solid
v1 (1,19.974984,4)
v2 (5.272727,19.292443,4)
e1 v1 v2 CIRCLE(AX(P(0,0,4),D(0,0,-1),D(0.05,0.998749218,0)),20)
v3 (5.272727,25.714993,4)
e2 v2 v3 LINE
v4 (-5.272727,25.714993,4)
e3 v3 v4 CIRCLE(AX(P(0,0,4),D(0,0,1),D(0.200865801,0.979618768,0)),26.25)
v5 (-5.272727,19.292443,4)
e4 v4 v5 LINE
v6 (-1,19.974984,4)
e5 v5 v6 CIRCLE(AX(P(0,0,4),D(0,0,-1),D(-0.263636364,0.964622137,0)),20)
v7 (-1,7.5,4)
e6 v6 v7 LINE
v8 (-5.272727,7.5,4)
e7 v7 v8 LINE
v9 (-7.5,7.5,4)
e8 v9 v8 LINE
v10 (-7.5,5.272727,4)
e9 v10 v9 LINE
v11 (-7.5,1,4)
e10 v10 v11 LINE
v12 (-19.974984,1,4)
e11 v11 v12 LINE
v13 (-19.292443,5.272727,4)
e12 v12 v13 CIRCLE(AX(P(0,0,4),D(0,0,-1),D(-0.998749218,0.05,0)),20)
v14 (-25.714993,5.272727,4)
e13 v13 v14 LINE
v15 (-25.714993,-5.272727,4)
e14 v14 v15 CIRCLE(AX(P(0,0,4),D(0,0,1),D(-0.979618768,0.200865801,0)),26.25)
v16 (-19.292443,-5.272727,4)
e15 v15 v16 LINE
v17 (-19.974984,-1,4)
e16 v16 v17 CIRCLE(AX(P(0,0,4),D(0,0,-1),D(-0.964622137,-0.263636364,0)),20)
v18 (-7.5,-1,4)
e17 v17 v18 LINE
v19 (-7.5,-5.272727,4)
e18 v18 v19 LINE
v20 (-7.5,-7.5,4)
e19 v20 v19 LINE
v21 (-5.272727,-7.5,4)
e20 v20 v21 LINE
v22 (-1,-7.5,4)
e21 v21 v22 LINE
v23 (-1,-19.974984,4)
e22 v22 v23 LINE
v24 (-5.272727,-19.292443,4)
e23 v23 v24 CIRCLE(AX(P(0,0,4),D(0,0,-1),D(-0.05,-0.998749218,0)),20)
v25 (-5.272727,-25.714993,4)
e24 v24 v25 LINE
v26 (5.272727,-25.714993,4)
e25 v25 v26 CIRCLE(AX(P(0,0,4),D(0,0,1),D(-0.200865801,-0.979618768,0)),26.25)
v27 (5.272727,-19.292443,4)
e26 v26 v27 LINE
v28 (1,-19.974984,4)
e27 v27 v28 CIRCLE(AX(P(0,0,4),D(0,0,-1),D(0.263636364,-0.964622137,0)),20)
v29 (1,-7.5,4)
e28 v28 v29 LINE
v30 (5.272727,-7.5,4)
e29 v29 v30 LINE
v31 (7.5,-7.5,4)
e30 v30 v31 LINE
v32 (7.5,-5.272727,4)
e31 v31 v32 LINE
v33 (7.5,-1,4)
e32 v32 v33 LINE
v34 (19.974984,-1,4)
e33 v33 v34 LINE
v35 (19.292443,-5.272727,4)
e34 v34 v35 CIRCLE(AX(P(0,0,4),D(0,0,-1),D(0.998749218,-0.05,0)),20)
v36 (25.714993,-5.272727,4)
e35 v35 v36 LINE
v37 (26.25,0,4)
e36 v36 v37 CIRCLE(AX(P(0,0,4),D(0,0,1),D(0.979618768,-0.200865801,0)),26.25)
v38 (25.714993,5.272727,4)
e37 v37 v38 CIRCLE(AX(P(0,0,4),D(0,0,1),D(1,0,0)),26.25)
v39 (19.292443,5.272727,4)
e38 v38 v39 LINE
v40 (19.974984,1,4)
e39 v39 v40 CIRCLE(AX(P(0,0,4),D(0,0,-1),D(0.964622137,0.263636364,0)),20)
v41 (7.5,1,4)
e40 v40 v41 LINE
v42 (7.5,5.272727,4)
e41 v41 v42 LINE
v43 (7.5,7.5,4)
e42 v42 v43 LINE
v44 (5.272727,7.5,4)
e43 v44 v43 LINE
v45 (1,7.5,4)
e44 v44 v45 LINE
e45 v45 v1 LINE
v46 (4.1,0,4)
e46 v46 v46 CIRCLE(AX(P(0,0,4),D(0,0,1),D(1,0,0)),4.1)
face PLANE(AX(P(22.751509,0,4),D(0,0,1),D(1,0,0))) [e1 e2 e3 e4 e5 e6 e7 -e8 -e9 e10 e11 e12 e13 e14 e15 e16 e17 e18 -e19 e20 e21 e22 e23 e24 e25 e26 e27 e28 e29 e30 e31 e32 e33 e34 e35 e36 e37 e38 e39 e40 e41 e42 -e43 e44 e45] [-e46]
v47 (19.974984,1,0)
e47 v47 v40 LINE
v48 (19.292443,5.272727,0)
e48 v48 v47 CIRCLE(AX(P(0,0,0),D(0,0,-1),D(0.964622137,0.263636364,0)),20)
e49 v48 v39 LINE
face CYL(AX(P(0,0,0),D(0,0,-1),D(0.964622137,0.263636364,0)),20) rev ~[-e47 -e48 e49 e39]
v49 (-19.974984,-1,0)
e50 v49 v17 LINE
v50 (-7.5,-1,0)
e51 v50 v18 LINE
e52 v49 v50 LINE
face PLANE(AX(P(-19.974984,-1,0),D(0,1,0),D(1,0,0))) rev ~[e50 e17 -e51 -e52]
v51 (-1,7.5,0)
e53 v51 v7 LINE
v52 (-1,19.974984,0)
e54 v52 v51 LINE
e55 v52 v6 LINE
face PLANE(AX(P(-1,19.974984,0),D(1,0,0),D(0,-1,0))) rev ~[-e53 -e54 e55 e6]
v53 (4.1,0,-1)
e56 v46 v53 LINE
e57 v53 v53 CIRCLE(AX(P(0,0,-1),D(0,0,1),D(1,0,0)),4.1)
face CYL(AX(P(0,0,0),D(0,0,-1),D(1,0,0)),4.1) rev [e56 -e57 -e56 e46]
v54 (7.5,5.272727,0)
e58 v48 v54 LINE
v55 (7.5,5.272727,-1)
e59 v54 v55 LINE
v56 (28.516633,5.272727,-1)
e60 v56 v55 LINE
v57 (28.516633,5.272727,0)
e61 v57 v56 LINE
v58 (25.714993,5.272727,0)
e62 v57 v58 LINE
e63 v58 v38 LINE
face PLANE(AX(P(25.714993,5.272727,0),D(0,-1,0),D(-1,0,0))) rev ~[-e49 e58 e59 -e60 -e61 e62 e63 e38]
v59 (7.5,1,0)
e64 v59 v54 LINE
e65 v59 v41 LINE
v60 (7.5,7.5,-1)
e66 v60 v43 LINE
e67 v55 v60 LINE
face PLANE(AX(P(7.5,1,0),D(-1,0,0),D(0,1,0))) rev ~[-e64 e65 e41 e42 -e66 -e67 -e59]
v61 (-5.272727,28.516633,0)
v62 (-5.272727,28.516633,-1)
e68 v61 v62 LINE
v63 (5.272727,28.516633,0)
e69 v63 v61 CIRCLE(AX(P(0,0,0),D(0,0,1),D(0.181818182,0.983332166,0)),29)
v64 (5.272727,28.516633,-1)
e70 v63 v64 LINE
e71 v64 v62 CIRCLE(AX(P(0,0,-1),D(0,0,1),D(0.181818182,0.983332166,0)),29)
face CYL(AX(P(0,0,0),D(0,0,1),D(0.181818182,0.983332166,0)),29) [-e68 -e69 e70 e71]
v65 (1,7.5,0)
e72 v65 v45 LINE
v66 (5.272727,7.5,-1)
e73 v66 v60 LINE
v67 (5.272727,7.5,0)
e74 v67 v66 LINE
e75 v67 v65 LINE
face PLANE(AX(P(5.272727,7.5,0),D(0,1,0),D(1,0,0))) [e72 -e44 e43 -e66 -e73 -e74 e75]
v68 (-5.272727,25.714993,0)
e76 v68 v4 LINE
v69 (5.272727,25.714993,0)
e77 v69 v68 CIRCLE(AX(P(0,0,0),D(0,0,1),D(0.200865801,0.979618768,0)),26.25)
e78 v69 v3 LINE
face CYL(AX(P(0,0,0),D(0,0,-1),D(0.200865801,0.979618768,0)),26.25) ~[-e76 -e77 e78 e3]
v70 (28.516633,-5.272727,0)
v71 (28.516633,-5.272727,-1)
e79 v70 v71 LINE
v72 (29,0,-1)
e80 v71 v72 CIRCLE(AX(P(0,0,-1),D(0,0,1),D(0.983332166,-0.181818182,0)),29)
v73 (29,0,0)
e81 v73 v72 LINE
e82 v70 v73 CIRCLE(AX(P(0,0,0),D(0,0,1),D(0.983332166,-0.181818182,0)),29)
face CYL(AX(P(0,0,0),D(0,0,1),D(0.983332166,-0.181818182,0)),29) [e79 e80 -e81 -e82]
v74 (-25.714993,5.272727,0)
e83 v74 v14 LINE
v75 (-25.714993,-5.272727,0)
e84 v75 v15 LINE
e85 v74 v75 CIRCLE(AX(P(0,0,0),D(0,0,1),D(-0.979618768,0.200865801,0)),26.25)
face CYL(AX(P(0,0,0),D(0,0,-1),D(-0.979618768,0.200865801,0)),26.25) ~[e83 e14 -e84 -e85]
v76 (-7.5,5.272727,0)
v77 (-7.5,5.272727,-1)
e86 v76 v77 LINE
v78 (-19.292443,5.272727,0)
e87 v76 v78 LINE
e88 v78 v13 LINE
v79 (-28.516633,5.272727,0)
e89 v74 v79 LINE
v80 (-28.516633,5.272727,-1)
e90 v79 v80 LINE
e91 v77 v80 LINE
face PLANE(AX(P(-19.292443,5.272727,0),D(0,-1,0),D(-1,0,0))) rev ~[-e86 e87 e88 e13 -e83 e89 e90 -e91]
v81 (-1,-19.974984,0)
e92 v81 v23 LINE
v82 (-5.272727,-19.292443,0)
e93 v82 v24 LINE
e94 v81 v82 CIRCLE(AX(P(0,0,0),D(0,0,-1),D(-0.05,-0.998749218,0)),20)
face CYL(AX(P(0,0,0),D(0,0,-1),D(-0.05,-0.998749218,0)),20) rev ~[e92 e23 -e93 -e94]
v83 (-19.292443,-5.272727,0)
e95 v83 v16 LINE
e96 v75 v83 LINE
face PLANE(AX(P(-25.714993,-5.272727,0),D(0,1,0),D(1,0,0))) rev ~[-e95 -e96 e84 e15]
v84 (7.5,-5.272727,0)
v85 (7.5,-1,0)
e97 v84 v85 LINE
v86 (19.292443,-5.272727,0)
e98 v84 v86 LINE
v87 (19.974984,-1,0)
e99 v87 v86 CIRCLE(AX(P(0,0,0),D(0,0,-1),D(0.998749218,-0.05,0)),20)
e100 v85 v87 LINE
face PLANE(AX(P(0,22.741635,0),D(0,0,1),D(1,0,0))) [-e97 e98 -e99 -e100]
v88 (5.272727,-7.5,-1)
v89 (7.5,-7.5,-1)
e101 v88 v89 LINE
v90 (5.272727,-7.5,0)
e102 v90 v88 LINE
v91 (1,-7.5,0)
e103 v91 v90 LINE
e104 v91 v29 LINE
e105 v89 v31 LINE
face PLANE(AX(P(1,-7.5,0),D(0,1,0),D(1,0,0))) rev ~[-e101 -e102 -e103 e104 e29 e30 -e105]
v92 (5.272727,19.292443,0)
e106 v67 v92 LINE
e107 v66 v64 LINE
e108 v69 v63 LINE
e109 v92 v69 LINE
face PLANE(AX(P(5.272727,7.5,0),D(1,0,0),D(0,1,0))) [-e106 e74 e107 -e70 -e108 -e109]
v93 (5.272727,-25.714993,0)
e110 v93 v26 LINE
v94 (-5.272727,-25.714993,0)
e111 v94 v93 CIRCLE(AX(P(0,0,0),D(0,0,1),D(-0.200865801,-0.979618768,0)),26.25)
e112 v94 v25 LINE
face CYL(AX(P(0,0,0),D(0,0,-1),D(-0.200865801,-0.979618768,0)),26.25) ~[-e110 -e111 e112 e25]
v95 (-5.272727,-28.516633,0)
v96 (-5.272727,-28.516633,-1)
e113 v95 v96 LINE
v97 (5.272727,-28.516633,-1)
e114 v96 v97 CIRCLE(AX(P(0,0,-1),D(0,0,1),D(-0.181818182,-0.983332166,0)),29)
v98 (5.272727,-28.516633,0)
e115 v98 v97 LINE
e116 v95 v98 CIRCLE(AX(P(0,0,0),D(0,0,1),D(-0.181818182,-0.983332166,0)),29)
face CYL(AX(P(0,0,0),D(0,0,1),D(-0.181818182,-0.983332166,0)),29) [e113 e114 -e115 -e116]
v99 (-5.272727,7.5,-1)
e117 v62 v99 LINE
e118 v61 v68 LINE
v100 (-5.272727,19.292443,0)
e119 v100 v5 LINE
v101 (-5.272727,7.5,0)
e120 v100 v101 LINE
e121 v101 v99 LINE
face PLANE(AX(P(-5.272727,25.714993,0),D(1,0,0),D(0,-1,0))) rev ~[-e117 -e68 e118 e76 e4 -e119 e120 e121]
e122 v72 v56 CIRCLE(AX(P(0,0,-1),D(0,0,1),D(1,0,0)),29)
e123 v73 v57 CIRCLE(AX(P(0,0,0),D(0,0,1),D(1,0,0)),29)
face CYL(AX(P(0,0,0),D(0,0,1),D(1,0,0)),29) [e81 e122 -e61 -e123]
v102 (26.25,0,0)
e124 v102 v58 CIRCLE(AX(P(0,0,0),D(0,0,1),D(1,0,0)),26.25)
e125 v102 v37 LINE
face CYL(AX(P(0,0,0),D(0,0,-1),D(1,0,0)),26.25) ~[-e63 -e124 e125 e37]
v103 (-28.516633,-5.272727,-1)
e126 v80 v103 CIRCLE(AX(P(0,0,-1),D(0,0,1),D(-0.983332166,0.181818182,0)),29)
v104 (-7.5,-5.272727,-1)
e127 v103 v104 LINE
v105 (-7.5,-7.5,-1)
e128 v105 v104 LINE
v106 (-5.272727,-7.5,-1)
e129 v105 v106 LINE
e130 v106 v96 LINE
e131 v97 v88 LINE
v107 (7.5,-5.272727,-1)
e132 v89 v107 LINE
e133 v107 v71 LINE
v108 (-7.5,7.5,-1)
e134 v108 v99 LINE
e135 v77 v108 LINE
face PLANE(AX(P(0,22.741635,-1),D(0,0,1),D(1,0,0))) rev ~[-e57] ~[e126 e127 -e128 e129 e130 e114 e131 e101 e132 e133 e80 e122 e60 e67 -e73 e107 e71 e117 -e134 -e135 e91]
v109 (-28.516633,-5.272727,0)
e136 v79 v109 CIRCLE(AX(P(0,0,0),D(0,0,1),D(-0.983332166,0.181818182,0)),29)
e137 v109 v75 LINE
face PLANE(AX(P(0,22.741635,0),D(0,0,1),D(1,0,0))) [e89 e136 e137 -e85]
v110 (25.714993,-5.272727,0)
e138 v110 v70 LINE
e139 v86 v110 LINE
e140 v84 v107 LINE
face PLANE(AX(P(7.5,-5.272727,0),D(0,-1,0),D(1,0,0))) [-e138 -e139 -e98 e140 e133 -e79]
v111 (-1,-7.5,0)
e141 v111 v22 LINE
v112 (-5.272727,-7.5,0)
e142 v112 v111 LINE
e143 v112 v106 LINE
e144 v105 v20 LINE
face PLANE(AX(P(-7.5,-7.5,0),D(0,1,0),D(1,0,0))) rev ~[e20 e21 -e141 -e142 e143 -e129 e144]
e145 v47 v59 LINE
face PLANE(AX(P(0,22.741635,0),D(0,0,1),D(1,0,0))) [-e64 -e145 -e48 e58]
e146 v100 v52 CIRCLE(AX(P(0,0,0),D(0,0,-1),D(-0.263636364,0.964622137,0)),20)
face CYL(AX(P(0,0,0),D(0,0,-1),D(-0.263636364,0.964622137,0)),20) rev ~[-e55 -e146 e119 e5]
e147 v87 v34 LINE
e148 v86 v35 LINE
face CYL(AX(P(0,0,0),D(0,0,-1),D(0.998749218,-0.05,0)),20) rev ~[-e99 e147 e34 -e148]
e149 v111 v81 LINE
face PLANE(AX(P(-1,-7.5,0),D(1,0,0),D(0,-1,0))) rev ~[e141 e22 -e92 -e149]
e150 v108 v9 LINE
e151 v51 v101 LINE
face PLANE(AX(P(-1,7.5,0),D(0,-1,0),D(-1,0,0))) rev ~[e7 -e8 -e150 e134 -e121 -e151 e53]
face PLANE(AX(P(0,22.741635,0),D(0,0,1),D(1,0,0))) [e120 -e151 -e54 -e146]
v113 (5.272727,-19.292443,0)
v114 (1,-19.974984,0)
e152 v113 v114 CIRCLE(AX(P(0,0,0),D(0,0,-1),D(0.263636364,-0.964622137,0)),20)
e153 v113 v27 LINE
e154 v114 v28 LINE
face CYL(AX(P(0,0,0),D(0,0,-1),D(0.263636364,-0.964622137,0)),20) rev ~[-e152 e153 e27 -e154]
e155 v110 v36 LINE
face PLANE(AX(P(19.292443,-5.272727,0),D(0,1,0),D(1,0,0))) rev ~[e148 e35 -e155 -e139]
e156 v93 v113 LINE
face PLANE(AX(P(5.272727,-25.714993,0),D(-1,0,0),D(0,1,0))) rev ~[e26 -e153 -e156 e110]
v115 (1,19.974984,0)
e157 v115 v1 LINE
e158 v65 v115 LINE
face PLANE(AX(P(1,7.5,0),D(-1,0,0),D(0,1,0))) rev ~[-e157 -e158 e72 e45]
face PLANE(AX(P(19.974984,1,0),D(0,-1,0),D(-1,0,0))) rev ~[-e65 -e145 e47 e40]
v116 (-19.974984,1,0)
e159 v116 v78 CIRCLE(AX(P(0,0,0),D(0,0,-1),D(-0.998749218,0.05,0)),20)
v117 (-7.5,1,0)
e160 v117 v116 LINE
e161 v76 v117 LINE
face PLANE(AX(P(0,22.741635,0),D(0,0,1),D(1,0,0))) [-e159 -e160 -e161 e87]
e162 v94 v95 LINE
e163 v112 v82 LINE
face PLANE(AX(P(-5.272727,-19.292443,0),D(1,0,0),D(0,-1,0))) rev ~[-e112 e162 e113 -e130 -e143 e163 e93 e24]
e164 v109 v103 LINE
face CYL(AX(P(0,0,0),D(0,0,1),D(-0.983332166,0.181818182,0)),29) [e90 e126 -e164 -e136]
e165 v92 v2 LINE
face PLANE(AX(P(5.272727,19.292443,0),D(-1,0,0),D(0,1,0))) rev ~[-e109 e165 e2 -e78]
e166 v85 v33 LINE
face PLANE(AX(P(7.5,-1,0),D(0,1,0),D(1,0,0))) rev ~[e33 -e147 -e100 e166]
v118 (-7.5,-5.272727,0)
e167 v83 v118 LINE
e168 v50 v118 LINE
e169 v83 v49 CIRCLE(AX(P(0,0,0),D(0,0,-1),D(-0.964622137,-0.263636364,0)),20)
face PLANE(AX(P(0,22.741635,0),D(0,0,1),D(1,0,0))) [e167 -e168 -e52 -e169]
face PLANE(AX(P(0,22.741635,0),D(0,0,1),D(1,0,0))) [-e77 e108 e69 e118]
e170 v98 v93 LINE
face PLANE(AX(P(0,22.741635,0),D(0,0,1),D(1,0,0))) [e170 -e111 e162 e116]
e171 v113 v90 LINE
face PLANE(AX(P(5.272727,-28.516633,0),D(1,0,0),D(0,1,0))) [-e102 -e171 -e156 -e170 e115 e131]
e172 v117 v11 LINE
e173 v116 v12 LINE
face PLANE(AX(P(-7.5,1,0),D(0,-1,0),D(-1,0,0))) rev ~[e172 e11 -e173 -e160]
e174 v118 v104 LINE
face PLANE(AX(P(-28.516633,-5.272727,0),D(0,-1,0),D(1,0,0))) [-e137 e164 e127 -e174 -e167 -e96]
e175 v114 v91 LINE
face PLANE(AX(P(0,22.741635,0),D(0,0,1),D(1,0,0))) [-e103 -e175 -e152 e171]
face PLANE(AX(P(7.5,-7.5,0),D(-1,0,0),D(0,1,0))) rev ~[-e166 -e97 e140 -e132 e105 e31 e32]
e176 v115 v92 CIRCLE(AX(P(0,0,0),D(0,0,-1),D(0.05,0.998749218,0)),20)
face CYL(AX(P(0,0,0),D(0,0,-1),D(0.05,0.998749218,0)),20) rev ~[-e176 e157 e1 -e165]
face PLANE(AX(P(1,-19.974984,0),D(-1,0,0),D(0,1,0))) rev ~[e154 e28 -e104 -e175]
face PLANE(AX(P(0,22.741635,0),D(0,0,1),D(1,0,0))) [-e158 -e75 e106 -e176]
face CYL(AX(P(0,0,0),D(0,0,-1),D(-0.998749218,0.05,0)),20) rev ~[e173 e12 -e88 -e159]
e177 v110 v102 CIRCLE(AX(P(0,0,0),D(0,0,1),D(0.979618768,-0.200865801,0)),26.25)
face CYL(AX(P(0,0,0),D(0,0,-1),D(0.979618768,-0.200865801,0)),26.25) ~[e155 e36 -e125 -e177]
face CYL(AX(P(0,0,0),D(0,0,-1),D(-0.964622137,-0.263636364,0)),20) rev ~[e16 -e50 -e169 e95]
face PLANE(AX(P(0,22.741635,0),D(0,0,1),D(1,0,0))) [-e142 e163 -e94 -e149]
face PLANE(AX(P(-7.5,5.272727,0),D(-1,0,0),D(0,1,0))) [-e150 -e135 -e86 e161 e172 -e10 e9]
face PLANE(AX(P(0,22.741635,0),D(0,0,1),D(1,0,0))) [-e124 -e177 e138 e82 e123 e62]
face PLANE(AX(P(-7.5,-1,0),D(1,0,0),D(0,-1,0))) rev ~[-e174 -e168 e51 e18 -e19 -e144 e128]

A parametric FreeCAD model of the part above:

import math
import FreeCAD as App
import Part
import Sketcher
from FreeCAD import Vector
Q = App.Units.Quantity

doc = App.newDocument("Part")
body = doc.addObject("PartDesign::Body", "Body")

# Sketch on XY plane
sketch1 = body.newObject("Sketcher::SketchObject", "Sketch")
sketch1.AttachmentSupport = (doc.getObject("XY_Plane"), [""])
sketch1.MapMode = "FlatFace"
sketch1.addGeometry([
    Part.ArcOfCircle(Part.Circle(Vector(0, 0, 0), Vector(0, 0, 1), 29), math.radians(80), math.radians(100)),  # 0
    Part.LineSegment(Vector(-5.3, 28.5, 0), Vector(-5.3, 7.5, 0)),  # 1
    Part.LineSegment(Vector(-5.3, 7.5, 0), Vector(-7.5, 7.5, 0)),  # 2
    Part.LineSegment(Vector(-7.5, 7.5, 0), Vector(-7.5, 5.3, 0)),  # 3
    Part.LineSegment(Vector(-7.5, 5.3, 0), Vector(-28.5, 5.3, 0)),  # 4
    Part.ArcOfCircle(Part.Circle(Vector(0, 0, 0), Vector(0, 0, 1), 29), math.radians(170), math.radians(190)),  # 5
    Part.LineSegment(Vector(-28.5, -5.3, 0), Vector(-7.5, -5.3, 0)),  # 6
    Part.LineSegment(Vector(-7.5, -5.3, 0), Vector(-7.5, -7.5, 0)),  # 7
    Part.LineSegment(Vector(-7.5, -7.5, 0), Vector(-5.3, -7.5, 0)),  # 8
    Part.LineSegment(Vector(-5.3, -7.5, 0), Vector(-5.3, -28.5, 0)),  # 9
    Part.ArcOfCircle(Part.Circle(Vector(0, 0, 0), Vector(0, 0, 1), 29), math.radians(-100), math.radians(-80)),  # 10
    Part.LineSegment(Vector(5.3, -28.5, 0), Vector(5.3, -7.5, 0)),  # 11
    Part.LineSegment(Vector(5.3, -7.5, 0), Vector(7.5, -7.5, 0)),  # 12
    Part.LineSegment(Vector(7.5, -7.5, 0), Vector(7.5, -5.3, 0)),  # 13
    Part.LineSegment(Vector(7.5, -5.3, 0), Vector(28.5, -5.3, 0)),  # 14
    Part.ArcOfCircle(Part.Circle(Vector(0, 0, 0), Vector(0, 0, 1), 29), math.radians(-10.48), math.radians(0)),  # 15
    Part.ArcOfCircle(Part.Circle(Vector(0, 0, 0), Vector(0, 0, 1), 29), math.radians(0), math.radians(10.48)),  # 16
    Part.LineSegment(Vector(28.5, 5.3, 0), Vector(7.5, 5.3, 0)),  # 17
    Part.LineSegment(Vector(7.5, 5.3, 0), Vector(7.5, 7.5, 0)),  # 18
    Part.LineSegment(Vector(7.5, 7.5, 0), Vector(5.3, 7.5, 0)),  # 19
    Part.LineSegment(Vector(5.3, 7.5, 0), Vector(5.3, 28.5, 0)),  # 20
    Part.Circle(Vector(0, 0, 0), Vector(0, 0, 1), 4.1),  # 21
], False)
sketch1.addConstraint([
    Sketcher.Constraint("Coincident", 0, 2, 1, 1),
    Sketcher.Constraint("Coincident", 1, 2, 2, 1),
    Sketcher.Constraint("Coincident", 2, 2, 3, 1),
    Sketcher.Constraint("Coincident", 3, 2, 4, 1),
    Sketcher.Constraint("Coincident", 4, 2, 5, 1),
    Sketcher.Constraint("Coincident", 5, 2, 6, 1),
    Sketcher.Constraint("Coincident", 6, 2, 7, 1),
    Sketcher.Constraint("Coincident", 7, 2, 8, 1),
    Sketcher.Constraint("Coincident", 8, 2, 9, 1),
    Sketcher.Constraint("Coincident", 9, 2, 10, 1),
    Sketcher.Constraint("Coincident", 10, 2, 11, 1),
    Sketcher.Constraint("Coincident", 11, 2, 12, 1),
    Sketcher.Constraint("Coincident", 12, 2, 13, 1),
    Sketcher.Constraint("Coincident", 13, 2, 14, 1),
    Sketcher.Constraint("Coincident", 14, 2, 15, 1),
    Sketcher.Constraint("Tangent", 15, 2, 16, 1),
    Sketcher.Constraint("Coincident", 16, 2, 17, 1),
    Sketcher.Constraint("Coincident", 17, 2, 18, 1),
    Sketcher.Constraint("Coincident", 18, 2, 19, 1),
    Sketcher.Constraint("Coincident", 19, 2, 20, 1),
    Sketcher.Constraint("Coincident", 20, 2, 0, 1),
    Sketcher.Constraint("Vertical", 1),
    Sketcher.Constraint("Horizontal", 2),
    Sketcher.Constraint("Vertical", 3),
    Sketcher.Constraint("Horizontal", 4),
    Sketcher.Constraint("Horizontal", 6),
    Sketcher.Constraint("Vertical", 7),
    Sketcher.Constraint("Horizontal", 8),
    Sketcher.Constraint("Vertical", 9),
    Sketcher.Constraint("Vertical", 11),
    Sketcher.Constraint("Horizontal", 12),
    Sketcher.Constraint("Vertical", 13),
    Sketcher.Constraint("Horizontal", 14),
    Sketcher.Constraint("Horizontal", 17),
    Sketcher.Constraint("Vertical", 18),
    Sketcher.Constraint("Horizontal", 19),
    Sketcher.Constraint("Vertical", 20),
    Sketcher.Constraint("Coincident", 0, 3, -1, 1),
    Sketcher.Constraint("Coincident", 5, 3, -1, 1),
    Sketcher.Constraint("Coincident", 10, 3, -1, 1),
    Sketcher.Constraint("Coincident", 15, 3, -1, 1),
    Sketcher.Constraint("Coincident", 21, 3, -1, 1),
    Sketcher.Constraint("Equal", 0, 5),
    Sketcher.Constraint("Equal", 5, 10),
    Sketcher.Constraint("Equal", 10, 15),
    Sketcher.Constraint("Equal", 15, 16),
    Sketcher.Constraint("Symmetric", 1, 2, 11, 2, -1, 1),
    Sketcher.Constraint("Symmetric", 3, 2, 13, 2, -1, 1),
    Sketcher.Constraint("Symmetric", 6, 2, 17, 2, -1, 1),
    Sketcher.Constraint("Symmetric", 8, 2, 19, 2, -1, 1),
    Sketcher.Constraint("Symmetric", 8, 2, 11, 2, -2),
    Sketcher.Constraint("Symmetric", 6, 2, 13, 2, -2),
    Sketcher.Constraint("PointOnObject", 15, 2, -1),
    Sketcher.Constraint("Equal", 17, 1),
    Sketcher.Constraint("Equal", 19, 3),
    Sketcher.Constraint("Radius", 0, Q("29 mm")),
    Sketcher.Constraint("Diameter", 21, Q("8.2 mm")),
    Sketcher.Constraint("DistanceY", -1, 1, 1, 2, Q("7.5 mm")),
    Sketcher.Constraint("DistanceX", 2, 2, 2, 1, Q("2.227273 mm")),
])
pad1 = body.newObject("PartDesign::Pad", "Pad")
pad1.Profile = sketch1
pad1.Length = 1
pad1.Reversed = True

# Sketch on XY plane
sketch2 = body.newObject("Sketcher::SketchObject", "Sketch001")
sketch2.AttachmentSupport = (doc.getObject("XY_Plane"), [""])
sketch2.MapMode = "FlatFace"
sketch2.addGeometry([
    Part.ArcOfCircle(Part.Circle(Vector(0, 0, 0), Vector(0, 0, 1), 26.2), math.radians(-11.59), math.radians(0)),  # 0
    Part.ArcOfCircle(Part.Circle(Vector(0, 0, 0), Vector(0, 0, 1), 26.2), math.radians(0), math.radians(11.59)),  # 1
    Part.LineSegment(Vector(25.7, 5.3, 0), Vector(19.3, 5.3, 0)),  # 2
    Part.ArcOfCircle(Part.Circle(Vector(0, 0, 0), Vector(0, 0, 1), 20), math.radians(2.87), math.radians(15.29)),  # 3
    Part.LineSegment(Vector(20, 1, 0), Vector(7.5, 1, 0)),  # 4
    Part.LineSegment(Vector(7.5, 1, 0), Vector(7.5, 5.3, 0)),  # 5
    Part.LineSegment(Vector(7.5, 5.3, 0), Vector(7.5, 7.5, 0)),  # 6
    Part.LineSegment(Vector(7.5, 7.5, 0), Vector(5.3, 7.5, 0)),  # 7
    Part.LineSegment(Vector(5.3, 7.5, 0), Vector(1, 7.5, 0)),  # 8
    Part.LineSegment(Vector(1, 7.5, 0), Vector(1, 20, 0)),  # 9
    Part.ArcOfCircle(Part.Circle(Vector(0, 0, 0), Vector(0, 0, 1), 20), math.radians(74.71), math.radians(87.13)),  # 10
    Part.LineSegment(Vector(5.3, 19.3, 0), Vector(5.3, 25.7, 0)),  # 11
    Part.ArcOfCircle(Part.Circle(Vector(0, 0, 0), Vector(0, 0, 1), 26.2), math.radians(78), math.radians(102)),  # 12
    Part.LineSegment(Vector(-5.3, 25.7, 0), Vector(-5.3, 19.3, 0)),  # 13
    Part.ArcOfCircle(Part.Circle(Vector(0, 0, 0), Vector(0, 0, 1), 20), math.radians(92.87), math.radians(105.29)),  # 14
    Part.LineSegment(Vector(-1, 20, 0), Vector(-1, 7.5, 0)),  # 15
    Part.LineSegment(Vector(-1, 7.5, 0), Vector(-5.3, 7.5, 0)),  # 16
    Part.LineSegment(Vector(-5.3, 7.5, 0), Vector(-7.5, 7.5, 0)),  # 17
    Part.LineSegment(Vector(-7.5, 7.5, 0), Vector(-7.5, 5.3, 0)),  # 18
    Part.LineSegment(Vector(-7.5, 5.3, 0), Vector(-7.5, 1, 0)),  # 19
    Part.LineSegment(Vector(-7.5, 1, 0), Vector(-20, 1, 0)),  # 20
    Part.ArcOfCircle(Part.Circle(Vector(0, 0, 0), Vector(0, 0, 1), 20), math.radians(164.71), math.radians(177.13)),  # 21
    Part.LineSegment(Vector(-19.3, 5.3, 0), Vector(-25.7, 5.3, 0)),  # 22
    Part.ArcOfCircle(Part.Circle(Vector(0, 0, 0), Vector(0, 0, 1), 26.2), math.radians(168), math.radians(192)),  # 23
    Part.LineSegment(Vector(-25.7, -5.3, 0), Vector(-19.3, -5.3, 0)),  # 24
    Part.ArcOfCircle(Part.Circle(Vector(0, 0, 0), Vector(0, 0, 1), 20), math.radians(-177.13), math.radians(-164.71)),  # 25
    Part.LineSegment(Vector(-20, -1, 0), Vector(-7.5, -1, 0)),  # 26
    Part.LineSegment(Vector(-7.5, -1, 0), Vector(-7.5, -5.3, 0)),  # 27
    Part.LineSegment(Vector(-7.5, -5.3, 0), Vector(-7.5, -7.5, 0)),  # 28
    Part.LineSegment(Vector(-7.5, -7.5, 0), Vector(-5.3, -7.5, 0)),  # 29
    Part.LineSegment(Vector(-5.3, -7.5, 0), Vector(-1, -7.5, 0)),  # 30
    Part.LineSegment(Vector(-1, -7.5, 0), Vector(-1, -20, 0)),  # 31
    Part.ArcOfCircle(Part.Circle(Vector(0, 0, 0), Vector(0, 0, 1), 20), math.radians(-105.29), math.radians(-92.87)),  # 32
    Part.LineSegment(Vector(-5.3, -19.3, 0), Vector(-5.3, -25.7, 0)),  # 33
    Part.ArcOfCircle(Part.Circle(Vector(0, 0, 0), Vector(0, 0, 1), 26.2), math.radians(-102), math.radians(-78)),  # 34
    Part.LineSegment(Vector(5.3, -25.7, 0), Vector(5.3, -19.3, 0)),  # 35
    Part.ArcOfCircle(Part.Circle(Vector(0, 0, 0), Vector(0, 0, 1), 20), math.radians(-87.13), math.radians(-74.71)),  # 36
    Part.LineSegment(Vector(1, -20, 0), Vector(1, -7.5, 0)),  # 37
    Part.LineSegment(Vector(1, -7.5, 0), Vector(5.3, -7.5, 0)),  # 38
    Part.LineSegment(Vector(5.3, -7.5, 0), Vector(7.5, -7.5, 0)),  # 39
    Part.LineSegment(Vector(7.5, -7.5, 0), Vector(7.5, -5.3, 0)),  # 40
    Part.LineSegment(Vector(7.5, -5.3, 0), Vector(7.5, -1, 0)),  # 41
    Part.LineSegment(Vector(7.5, -1, 0), Vector(20, -1, 0)),  # 42
    Part.ArcOfCircle(Part.Circle(Vector(0, 0, 0), Vector(0, 0, 1), 20), math.radians(-15.29), math.radians(-2.87)),  # 43
    Part.LineSegment(Vector(19.3, -5.3, 0), Vector(25.7, -5.3, 0)),  # 44
    Part.Circle(Vector(0, 0, 0), Vector(0, 0, 1), 4.1),  # 45
], False)
sketch2.addConstraint([
    Sketcher.Constraint("Tangent", 0, 2, 1, 1),
    Sketcher.Constraint("Coincident", 1, 2, 2, 1),
    Sketcher.Constraint("Coincident", 2, 2, 3, 2),
    Sketcher.Constraint("Coincident", 3, 1, 4, 1),
    Sketcher.Constraint("Coincident", 4, 2, 5, 1),
    Sketcher.Constraint("Coincident", 5, 2, 6, 1),
    Sketcher.Constraint("Coincident", 6, 2, 7, 1),
    Sketcher.Constraint("Coincident", 7, 2, 8, 1),
    Sketcher.Constraint("Coincident", 8, 2, 9, 1),
    Sketcher.Constraint("Coincident", 9, 2, 10, 2),
    Sketcher.Constraint("Coincident", 10, 1, 11, 1),
    Sketcher.Constraint("Coincident", 11, 2, 12, 1),
    Sketcher.Constraint("Coincident", 12, 2, 13, 1),
    Sketcher.Constraint("Coincident", 13, 2, 14, 2),
    Sketcher.Constraint("Coincident", 14, 1, 15, 1),
    Sketcher.Constraint("Coincident", 15, 2, 16, 1),
    Sketcher.Constraint("Coincident", 16, 2, 17, 1),
    Sketcher.Constraint("Coincident", 17, 2, 18, 1),
    Sketcher.Constraint("Coincident", 18, 2, 19, 1),
    Sketcher.Constraint("Coincident", 19, 2, 20, 1),
    Sketcher.Constraint("Coincident", 20, 2, 21, 2),
    Sketcher.Constraint("Coincident", 21, 1, 22, 1),
    Sketcher.Constraint("Coincident", 22, 2, 23, 1),
    Sketcher.Constraint("Coincident", 23, 2, 24, 1),
    Sketcher.Constraint("Coincident", 24, 2, 25, 2),
    Sketcher.Constraint("Coincident", 25, 1, 26, 1),
    Sketcher.Constraint("Coincident", 26, 2, 27, 1),
    Sketcher.Constraint("Coincident", 27, 2, 28, 1),
    Sketcher.Constraint("Coincident", 28, 2, 29, 1),
    Sketcher.Constraint("Coincident", 29, 2, 30, 1),
    Sketcher.Constraint("Coincident", 30, 2, 31, 1),
    Sketcher.Constraint("Coincident", 31, 2, 32, 2),
    Sketcher.Constraint("Coincident", 32, 1, 33, 1),
    Sketcher.Constraint("Coincident", 33, 2, 34, 1),
    Sketcher.Constraint("Coincident", 34, 2, 35, 1),
    Sketcher.Constraint("Coincident", 35, 2, 36, 2),
    Sketcher.Constraint("Coincident", 36, 1, 37, 1),
    Sketcher.Constraint("Coincident", 37, 2, 38, 1),
    Sketcher.Constraint("Coincident", 38, 2, 39, 1),
    Sketcher.Constraint("Coincident", 39, 2, 40, 1),
    Sketcher.Constraint("Coincident", 40, 2, 41, 1),
    Sketcher.Constraint("Coincident", 41, 2, 42, 1),
    Sketcher.Constraint("Coincident", 42, 2, 43, 2),
    Sketcher.Constraint("Coincident", 43, 1, 44, 1),
    Sketcher.Constraint("Coincident", 44, 2, 0, 1),
    Sketcher.Constraint("Horizontal", 2),
    Sketcher.Constraint("Horizontal", 4),
    Sketcher.Constraint("Vertical", 5),
    Sketcher.Constraint("Vertical", 6),
    Sketcher.Constraint("Horizontal", 7),
    Sketcher.Constraint("Horizontal", 8),
    Sketcher.Constraint("Vertical", 9),
    Sketcher.Constraint("Vertical", 11),
    Sketcher.Constraint("Vertical", 13),
    Sketcher.Constraint("Vertical", 15),
    Sketcher.Constraint("Horizontal", 16),
    Sketcher.Constraint("Horizontal", 17),
    Sketcher.Constraint("Vertical", 18),
    Sketcher.Constraint("Vertical", 19),
    Sketcher.Constraint("Horizontal", 20),
    Sketcher.Constraint("Horizontal", 22),
    Sketcher.Constraint("Horizontal", 24),
    Sketcher.Constraint("Horizontal", 26),
    Sketcher.Constraint("Vertical", 27),
    Sketcher.Constraint("Vertical", 28),
    Sketcher.Constraint("Horizontal", 29),
    Sketcher.Constraint("Horizontal", 30),
    Sketcher.Constraint("Vertical", 31),
    Sketcher.Constraint("Vertical", 33),
    Sketcher.Constraint("Vertical", 35),
    Sketcher.Constraint("Vertical", 37),
    Sketcher.Constraint("Horizontal", 38),
    Sketcher.Constraint("Horizontal", 39),
    Sketcher.Constraint("Vertical", 40),
    Sketcher.Constraint("Vertical", 41),
    Sketcher.Constraint("Horizontal", 42),
    Sketcher.Constraint("Horizontal", 44),
    Sketcher.Constraint("Coincident", 0, 3, -1, 1),
    Sketcher.Constraint("Coincident", 3, 3, -1, 1),
    Sketcher.Constraint("Coincident", 10, 3, -1, 1),
    Sketcher.Constraint("Coincident", 12, 3, -1, 1),
    Sketcher.Constraint("Coincident", 14, 3, -1, 1),
    Sketcher.Constraint("Coincident", 21, 3, -1, 1),
    Sketcher.Constraint("Coincident", 23, 3, -1, 1),
    Sketcher.Constraint("Coincident", 25, 3, -1, 1),
    Sketcher.Constraint("Coincident", 32, 3, -1, 1),
    Sketcher.Constraint("Coincident", 34, 3, -1, 1),
    Sketcher.Constraint("Coincident", 36, 3, -1, 1),
    Sketcher.Constraint("Coincident", 43, 3, -1, 1),
    Sketcher.Constraint("Coincident", 45, 3, -1, 1),
    Sketcher.Constraint("Equal", 0, 1),
    Sketcher.Constraint("Equal", 3, 10),
    Sketcher.Constraint("Equal", 1, 12),
    Sketcher.Constraint("Equal", 10, 14),
    Sketcher.Constraint("Equal", 14, 21),
    Sketcher.Constraint("Equal", 12, 23),
    Sketcher.Constraint("Equal", 21, 25),
    Sketcher.Constraint("Equal", 25, 32),
    Sketcher.Constraint("Equal", 23, 34),
    Sketcher.Constraint("Equal", 32, 36),
    Sketcher.Constraint("Equal", 36, 43),
    Sketcher.Constraint("Symmetric", 4, 2, 26, 2, -1, 1),
    Sketcher.Constraint("Symmetric", 7, 2, 29, 2, -1, 1),
    Sketcher.Constraint("Symmetric", 15, 2, 37, 2, -1, 1),
    Sketcher.Constraint("Symmetric", 18, 2, 40, 2, -1, 1),
    Sketcher.Constraint("Symmetric", 8, 2, 15, 2, -2),
    Sketcher.Constraint("Symmetric", 5, 2, 18, 2, -2),
    Sketcher.Constraint("PointOnObject", 0, 2, -1),
    Sketcher.Constraint("Horizontal", 2, 2, 5, 2),
    Sketcher.Constraint("Horizontal", 11, 2, 12, 2),
    Sketcher.Constraint("Horizontal", 4, 2, 19, 2),
    Sketcher.Constraint("Horizontal", 18, 2, 21, 1),
    Sketcher.Constraint("Horizontal", 24, 2, 27, 2),
    Sketcher.Constraint("Horizontal", 33, 2, 34, 2),
    Sketcher.Constraint("Horizontal", 31, 2, 36, 1),
    Sketcher.Constraint("Horizontal", 27, 2, 40, 2),
    Sketcher.Constraint("Horizontal", 26, 2, 41, 2),
    Sketcher.Constraint("Horizontal", 40, 2, 43, 1),
    Sketcher.Constraint("Vertical", 7, 2, 10, 1),
    Sketcher.Constraint("Vertical", 13, 2, 16, 2),
    Sketcher.Constraint("Vertical", 29, 2, 32, 1),
    Sketcher.Constraint("Vertical", 35, 2, 38, 2),
    Sketcher.Constraint("Equal", 38, 5),
    Sketcher.Constraint("Equal", 39, 6),
    Sketcher.Constraint("Equal", 42, 9),
    Sketcher.Constraint("Radius", 3, Q("20 mm")),
    Sketcher.Constraint("Diameter", 45, Q("8.2 mm")),
    Sketcher.Constraint("Radius", 0, Q("26.25 mm")),
    Sketcher.Constraint("DistanceY", -1, 1, 3, 1, Q("1 mm")),
    Sketcher.Constraint("DistanceX", -1, 1, 4, 2, Q("7.5 mm")),
    Sketcher.Constraint("DistanceX", 2, 2, 2, 1, Q("6.42255 mm")),
])
pad2 = body.newObject("PartDesign::Pad", "Pad001")
pad2.Profile = sketch2
pad2.Length = 4

doc.recompute()
